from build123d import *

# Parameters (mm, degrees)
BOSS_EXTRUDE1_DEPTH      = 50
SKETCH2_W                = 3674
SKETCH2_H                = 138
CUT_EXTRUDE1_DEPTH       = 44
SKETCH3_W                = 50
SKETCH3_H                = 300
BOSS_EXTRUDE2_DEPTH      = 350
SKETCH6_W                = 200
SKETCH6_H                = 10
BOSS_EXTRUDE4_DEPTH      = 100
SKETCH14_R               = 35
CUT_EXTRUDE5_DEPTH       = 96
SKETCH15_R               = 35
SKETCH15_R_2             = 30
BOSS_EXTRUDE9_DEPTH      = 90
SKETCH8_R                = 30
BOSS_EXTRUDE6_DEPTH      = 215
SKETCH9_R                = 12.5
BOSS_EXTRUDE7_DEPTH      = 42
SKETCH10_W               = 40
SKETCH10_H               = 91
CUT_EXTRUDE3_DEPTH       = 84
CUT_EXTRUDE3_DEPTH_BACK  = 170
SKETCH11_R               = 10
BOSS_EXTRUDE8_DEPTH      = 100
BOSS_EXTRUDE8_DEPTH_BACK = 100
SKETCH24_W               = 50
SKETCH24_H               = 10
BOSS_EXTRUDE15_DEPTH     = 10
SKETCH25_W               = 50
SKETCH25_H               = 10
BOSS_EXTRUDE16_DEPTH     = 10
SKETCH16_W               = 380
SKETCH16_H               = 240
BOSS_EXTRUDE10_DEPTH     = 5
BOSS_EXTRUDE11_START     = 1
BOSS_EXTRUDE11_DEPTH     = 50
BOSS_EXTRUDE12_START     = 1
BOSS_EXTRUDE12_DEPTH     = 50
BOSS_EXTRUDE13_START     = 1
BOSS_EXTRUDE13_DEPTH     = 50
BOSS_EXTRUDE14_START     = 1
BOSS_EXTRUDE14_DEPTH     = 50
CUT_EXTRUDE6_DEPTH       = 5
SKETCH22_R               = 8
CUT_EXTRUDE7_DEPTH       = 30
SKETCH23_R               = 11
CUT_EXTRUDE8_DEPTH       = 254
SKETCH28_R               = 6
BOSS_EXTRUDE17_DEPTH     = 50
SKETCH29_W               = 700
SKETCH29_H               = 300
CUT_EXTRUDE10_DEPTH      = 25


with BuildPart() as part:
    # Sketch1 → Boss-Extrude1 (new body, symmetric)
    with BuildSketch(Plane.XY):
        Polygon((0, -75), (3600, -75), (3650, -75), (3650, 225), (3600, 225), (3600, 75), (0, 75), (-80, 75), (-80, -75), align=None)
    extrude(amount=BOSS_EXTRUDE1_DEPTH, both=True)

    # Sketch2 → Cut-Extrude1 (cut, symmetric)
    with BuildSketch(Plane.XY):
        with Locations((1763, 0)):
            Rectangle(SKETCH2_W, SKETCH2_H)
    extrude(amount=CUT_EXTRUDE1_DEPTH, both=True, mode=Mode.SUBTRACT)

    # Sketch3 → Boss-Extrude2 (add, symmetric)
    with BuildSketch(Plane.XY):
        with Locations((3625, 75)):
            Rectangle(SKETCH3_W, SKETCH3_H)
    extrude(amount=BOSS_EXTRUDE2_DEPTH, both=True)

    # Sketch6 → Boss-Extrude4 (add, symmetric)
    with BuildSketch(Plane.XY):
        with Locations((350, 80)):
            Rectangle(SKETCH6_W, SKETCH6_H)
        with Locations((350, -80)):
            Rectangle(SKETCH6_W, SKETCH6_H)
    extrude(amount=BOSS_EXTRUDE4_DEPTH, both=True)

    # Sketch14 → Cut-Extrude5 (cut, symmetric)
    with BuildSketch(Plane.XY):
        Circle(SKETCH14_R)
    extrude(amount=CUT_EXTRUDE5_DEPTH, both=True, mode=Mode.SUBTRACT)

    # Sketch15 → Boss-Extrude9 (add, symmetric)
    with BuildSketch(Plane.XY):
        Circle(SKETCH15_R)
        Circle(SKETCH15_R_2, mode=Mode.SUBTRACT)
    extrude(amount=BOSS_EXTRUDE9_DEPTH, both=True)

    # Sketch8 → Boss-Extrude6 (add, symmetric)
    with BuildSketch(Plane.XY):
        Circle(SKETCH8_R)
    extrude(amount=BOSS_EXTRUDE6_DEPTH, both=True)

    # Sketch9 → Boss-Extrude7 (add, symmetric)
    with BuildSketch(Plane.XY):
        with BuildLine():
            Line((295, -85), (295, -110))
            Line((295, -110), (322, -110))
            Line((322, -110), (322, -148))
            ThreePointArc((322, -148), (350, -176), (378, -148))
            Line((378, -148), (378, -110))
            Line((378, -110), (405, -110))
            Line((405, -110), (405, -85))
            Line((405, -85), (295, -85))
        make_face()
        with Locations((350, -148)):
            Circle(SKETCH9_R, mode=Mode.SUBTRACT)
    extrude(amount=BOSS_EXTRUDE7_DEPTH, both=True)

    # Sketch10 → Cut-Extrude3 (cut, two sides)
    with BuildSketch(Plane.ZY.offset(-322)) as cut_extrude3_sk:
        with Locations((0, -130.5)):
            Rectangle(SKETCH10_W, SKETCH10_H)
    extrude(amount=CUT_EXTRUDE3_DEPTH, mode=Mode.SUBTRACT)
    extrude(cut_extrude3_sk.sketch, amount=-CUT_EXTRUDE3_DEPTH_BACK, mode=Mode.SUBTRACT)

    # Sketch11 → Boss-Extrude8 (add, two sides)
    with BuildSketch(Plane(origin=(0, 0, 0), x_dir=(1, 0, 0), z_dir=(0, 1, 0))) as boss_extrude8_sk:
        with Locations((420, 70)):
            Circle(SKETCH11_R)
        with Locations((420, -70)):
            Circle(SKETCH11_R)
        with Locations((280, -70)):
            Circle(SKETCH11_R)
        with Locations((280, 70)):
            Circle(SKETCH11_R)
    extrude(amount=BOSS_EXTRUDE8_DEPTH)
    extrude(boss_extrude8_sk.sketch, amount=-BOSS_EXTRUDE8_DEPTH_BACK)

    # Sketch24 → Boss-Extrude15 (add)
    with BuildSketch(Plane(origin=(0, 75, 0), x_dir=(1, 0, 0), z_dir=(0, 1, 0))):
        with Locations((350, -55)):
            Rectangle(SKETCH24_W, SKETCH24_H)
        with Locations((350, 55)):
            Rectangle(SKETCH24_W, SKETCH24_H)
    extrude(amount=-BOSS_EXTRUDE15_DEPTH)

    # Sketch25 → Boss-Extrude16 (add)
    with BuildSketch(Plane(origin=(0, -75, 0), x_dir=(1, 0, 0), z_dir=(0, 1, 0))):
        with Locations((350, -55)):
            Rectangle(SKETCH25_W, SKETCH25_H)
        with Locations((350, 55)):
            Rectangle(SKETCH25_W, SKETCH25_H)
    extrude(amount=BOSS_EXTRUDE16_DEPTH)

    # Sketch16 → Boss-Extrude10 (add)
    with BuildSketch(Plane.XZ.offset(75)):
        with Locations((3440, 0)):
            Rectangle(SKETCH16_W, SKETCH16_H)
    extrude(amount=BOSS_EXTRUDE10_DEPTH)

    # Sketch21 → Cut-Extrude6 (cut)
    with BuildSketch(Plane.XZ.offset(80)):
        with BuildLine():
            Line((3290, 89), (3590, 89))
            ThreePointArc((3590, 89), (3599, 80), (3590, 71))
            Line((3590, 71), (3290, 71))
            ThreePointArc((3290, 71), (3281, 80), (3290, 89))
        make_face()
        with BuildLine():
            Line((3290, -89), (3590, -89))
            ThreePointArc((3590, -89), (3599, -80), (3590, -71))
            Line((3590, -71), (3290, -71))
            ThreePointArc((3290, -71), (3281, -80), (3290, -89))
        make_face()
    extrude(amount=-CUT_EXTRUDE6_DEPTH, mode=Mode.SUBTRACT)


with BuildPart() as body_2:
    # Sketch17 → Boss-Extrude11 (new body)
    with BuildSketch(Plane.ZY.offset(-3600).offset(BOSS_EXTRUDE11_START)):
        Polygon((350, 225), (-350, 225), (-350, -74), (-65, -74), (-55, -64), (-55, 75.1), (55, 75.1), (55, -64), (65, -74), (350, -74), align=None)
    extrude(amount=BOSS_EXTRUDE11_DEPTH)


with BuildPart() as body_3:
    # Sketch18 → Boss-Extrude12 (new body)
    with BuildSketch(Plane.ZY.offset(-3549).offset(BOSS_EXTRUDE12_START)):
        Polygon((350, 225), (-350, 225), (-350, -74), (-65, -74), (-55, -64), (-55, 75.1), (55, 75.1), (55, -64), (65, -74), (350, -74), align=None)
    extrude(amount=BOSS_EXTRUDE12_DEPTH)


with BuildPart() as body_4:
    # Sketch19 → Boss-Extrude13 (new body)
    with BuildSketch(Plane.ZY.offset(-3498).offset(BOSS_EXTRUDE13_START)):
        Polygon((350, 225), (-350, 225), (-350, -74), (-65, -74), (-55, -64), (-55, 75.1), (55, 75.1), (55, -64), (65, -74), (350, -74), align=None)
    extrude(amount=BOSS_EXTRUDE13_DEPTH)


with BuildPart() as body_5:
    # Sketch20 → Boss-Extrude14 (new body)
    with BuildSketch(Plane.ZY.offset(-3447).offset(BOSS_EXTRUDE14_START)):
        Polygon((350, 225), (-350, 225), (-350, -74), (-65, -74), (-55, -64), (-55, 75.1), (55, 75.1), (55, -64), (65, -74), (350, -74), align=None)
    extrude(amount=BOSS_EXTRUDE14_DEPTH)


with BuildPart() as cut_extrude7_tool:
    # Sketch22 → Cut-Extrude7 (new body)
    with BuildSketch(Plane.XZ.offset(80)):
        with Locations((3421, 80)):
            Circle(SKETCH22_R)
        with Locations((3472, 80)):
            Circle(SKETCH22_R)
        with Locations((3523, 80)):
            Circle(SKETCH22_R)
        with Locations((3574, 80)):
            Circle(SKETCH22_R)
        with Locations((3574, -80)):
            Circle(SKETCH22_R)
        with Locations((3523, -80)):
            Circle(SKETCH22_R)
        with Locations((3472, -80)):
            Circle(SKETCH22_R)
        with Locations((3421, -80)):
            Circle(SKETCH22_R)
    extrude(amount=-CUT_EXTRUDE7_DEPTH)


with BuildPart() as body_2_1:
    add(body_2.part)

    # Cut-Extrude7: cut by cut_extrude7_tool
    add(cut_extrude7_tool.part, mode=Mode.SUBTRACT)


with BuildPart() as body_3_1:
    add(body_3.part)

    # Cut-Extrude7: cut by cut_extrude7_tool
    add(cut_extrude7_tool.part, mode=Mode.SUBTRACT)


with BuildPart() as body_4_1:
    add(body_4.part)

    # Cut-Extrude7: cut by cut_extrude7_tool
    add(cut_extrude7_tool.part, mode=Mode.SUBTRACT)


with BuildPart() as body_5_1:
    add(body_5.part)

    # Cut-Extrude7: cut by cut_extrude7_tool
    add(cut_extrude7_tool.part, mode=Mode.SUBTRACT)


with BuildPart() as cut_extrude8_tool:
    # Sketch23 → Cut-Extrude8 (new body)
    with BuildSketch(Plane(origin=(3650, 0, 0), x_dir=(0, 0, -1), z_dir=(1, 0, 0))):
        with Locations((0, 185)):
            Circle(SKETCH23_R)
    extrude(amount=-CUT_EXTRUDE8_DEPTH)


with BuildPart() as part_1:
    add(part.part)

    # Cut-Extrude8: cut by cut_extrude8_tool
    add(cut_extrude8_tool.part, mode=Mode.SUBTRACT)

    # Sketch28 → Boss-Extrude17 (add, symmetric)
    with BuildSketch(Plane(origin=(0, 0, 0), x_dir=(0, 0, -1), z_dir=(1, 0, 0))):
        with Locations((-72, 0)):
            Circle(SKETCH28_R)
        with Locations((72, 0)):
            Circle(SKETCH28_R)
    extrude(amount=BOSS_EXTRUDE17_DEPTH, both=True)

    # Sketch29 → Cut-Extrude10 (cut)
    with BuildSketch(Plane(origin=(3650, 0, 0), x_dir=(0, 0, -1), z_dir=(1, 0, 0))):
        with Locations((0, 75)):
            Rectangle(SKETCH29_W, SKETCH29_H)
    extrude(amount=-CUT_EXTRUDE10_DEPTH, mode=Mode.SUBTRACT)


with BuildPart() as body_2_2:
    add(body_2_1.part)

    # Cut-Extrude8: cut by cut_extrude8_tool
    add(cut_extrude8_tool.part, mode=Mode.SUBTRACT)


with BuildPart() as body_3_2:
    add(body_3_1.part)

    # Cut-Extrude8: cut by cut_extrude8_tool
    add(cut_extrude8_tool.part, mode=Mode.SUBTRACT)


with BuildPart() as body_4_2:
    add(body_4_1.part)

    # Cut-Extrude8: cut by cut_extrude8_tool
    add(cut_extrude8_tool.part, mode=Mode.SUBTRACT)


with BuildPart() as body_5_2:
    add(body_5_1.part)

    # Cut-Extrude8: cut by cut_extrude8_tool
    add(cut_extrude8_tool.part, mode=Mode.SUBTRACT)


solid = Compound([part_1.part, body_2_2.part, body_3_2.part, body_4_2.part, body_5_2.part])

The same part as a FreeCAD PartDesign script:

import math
import FreeCAD as App
import Part
import Sketcher


def add_polygon(sketch, points):
    """Adds a closed chain of lines whose ends are joined by coincident constraints."""
    first, n = sketch.GeometryCount, len(points)
    for a, b in zip(points, points[1:] + points[:1]):
        sketch.addGeometry(Part.LineSegment(App.Vector(*a, 0), App.Vector(*b, 0)), False)
    for i in range(n):
        sketch.addConstraint(Sketcher.Constraint("Coincident", first + i, 2, first + (i + 1) % n, 1))

doc = App.newDocument("Part")
params = doc.addObject("Spreadsheet::Sheet", "Params")
for row, (alias, value) in enumerate([
    ("sketch1_width", "50 mm"),
    ("sketch1_width2", "3680 mm"),
    ("sketch1_height", "300 mm"),
    ("pad1_length", "100 mm"),
    ("sketch2_width", "3674 mm"),
    ("sketch2_height", "138 mm"),
    ("pocket1_length", "88 mm"),
    ("sketch3_width", "50 mm"),
    ("sketch3_height", "300 mm"),
    ("pad2_length", "700 mm"),
    ("sketch4_width", "200 mm"),
    ("sketch4_height", "10 mm"),
    ("pad3_length", "200 mm"),
    ("sketch5_diameter", "70 mm"),
    ("pocket2_length", "192 mm"),
    ("sketch6_diameter", "70 mm"),
    ("sketch6_diameter2", "60 mm"),
    ("pad4_length", "180 mm"),
    ("sketch7_diameter", "60 mm"),
    ("pad5_length", "430 mm"),
    ("sketch8_diameter", "25 mm"),
    ("sketch8_radius", "28 mm"),
    ("sketch8_width", "27 mm"),
    ("sketch8_height", "25 mm"),
    ("sketch8_height2", "38 mm"),
    ("pad6_length", "84 mm"),
    ("sketch9_width", "91 mm"),
    ("sketch9_height", "40 mm"),
    ("sketch10_diameter", "20 mm"),
    ("pad7_length", "100 mm"),
    ("pad7_length2", "100 mm"),
    ("sketch11_width", "50 mm"),
    ("sketch11_height", "10 mm"),
    ("pad8_length", "10 mm"),
    ("sketch12_width", "50 mm"),
    ("sketch12_height", "10 mm"),
    ("pad9_length", "10 mm"),
    ("sketch13_width", "380 mm"),
    ("sketch13_height", "240 mm"),
    ("pad10_length", "5 mm"),
    ("sketch14_radius", "9 mm"),
    ("sketch14_width", "300 mm"),
    ("pocket4_length", "5 mm"),
    ("sketch15_width", "299 mm"),
    ("sketch15_height", "700 mm"),
    ("sketch15_height2", "285 mm"),
    ("sketch15_height3", "110 mm"),
    ("sketch15_width2", "139.1 mm"),
    ("pad11_length", "50 mm"),
    ("sketch16_width", "299 mm"),
    ("sketch16_height", "700 mm"),
    ("sketch16_height2", "285 mm"),
    ("sketch16_height3", "110 mm"),
    ("sketch16_width2", "139.1 mm"),
    ("pad12_length", "50 mm"),
    ("sketch17_width", "299 mm"),
    ("sketch17_height", "700 mm"),
    ("sketch17_height2", "285 mm"),
    ("sketch17_height3", "110 mm"),
    ("sketch17_width2", "139.1 mm"),
    ("pad13_length", "50 mm"),
    ("sketch18_width", "299 mm"),
    ("sketch18_height", "700 mm"),
    ("sketch18_height2", "285 mm"),
    ("sketch18_height3", "110 mm"),
    ("sketch18_width2", "139.1 mm"),
    ("pad14_length", "50 mm"),
    ("sketch19_diameter", "16 mm"),
    ("pad15_length", "30 mm"),
    ("sketch20_diameter", "22 mm"),
    ("pad16_length", "254 mm"),
    ("sketch21_diameter", "12 mm"),
    ("pad17_length", "100 mm"),
    ("sketch22_width", "300 mm"),
    ("sketch22_height", "700 mm"),
    ("pocket5_length", "25 mm"),
], start=1):
    params.set(f"A{row}", alias)
    params.set(f"B{row}", "=" + value)
    params.setAlias(f"B{row}", alias)

body = doc.addObject("PartDesign::Body", "Body")

sketch1 = doc.addObject("Sketcher::SketchObject", "Sketch")
body.addObject(sketch1)
sketch1.AttachmentSupport = (doc.XY_Plane, [""])
sketch1.MapMode = "FlatFace"
add_polygon(sketch1, [(3650, -75), (3650, 225), (3600, 225), (3600, 75), (-80, 75), (-80, -75)])
sketch1.addConstraint([
    Sketcher.Constraint("Vertical", 0),
    Sketcher.Constraint("Horizontal", 1),
    Sketcher.Constraint("Vertical", 2),
    Sketcher.Constraint("Horizontal", 3),
    Sketcher.Constraint("Vertical", 4),
    Sketcher.Constraint("Horizontal", 5),
    Sketcher.Constraint("Equal", 2, 4),
    Sketcher.Constraint("DistanceX", 1, 2, 1, 1, 50.0),
    Sketcher.Constraint("DistanceX", 3, 2, 3, 1, 3680.0),
    Sketcher.Constraint("DistanceY", 0, 1, 0, 2, 300.0),
    Sketcher.Constraint("DistanceX", -1, 1, 0, 2, 3650.0),
    Sketcher.Constraint("DistanceY", -1, 1, 0, 2, 225.0),
])
sketch1.setExpression("Constraints[13]", "Params.sketch1_width")
sketch1.setExpression("Constraints[14]", "Params.sketch1_width2")
sketch1.setExpression("Constraints[15]", "Params.sketch1_height")
pad1 = doc.addObject("PartDesign::Pad", "Pad")
body.addObject(pad1)
pad1.Profile = sketch1
pad1.setExpression("Length", "Params.pad1_length")
pad1.Midplane = True

sketch2 = doc.addObject("Sketcher::SketchObject", "Sketch001")
body.addObject(sketch2)
sketch2.AttachmentSupport = (doc.XY_Plane, [""])
sketch2.MapMode = "FlatFace"
add_polygon(sketch2, [(-74, 69), (-74, -69), (3600, -69), (3600, 69)])
sketch2.addConstraint([
    Sketcher.Constraint("Vertical", 0),
    Sketcher.Constraint("Horizontal", 1),
    Sketcher.Constraint("Vertical", 2),
    Sketcher.Constraint("Horizontal", 3),
    Sketcher.Constraint("DistanceX", 1, 1, 1, 2, 3674.0),
    Sketcher.Constraint("DistanceY", 0, 2, 0, 1, 138.0),
    Sketcher.Constraint("DistanceX", 0, 2, -1, 1, 74.0),
    Sketcher.Constraint("DistanceY", 0, 2, -1, 1, 69.0),
])
sketch2.setExpression("Constraints[8]", "Params.sketch2_width")
sketch2.setExpression("Constraints[9]", "Params.sketch2_height")
pocket1 = doc.addObject("PartDesign::Pocket", "Pocket")
body.addObject(pocket1)
pocket1.Profile = sketch2
pocket1.setExpression("Length", "Params.pocket1_length")
pocket1.Midplane = True

sketch3 = doc.addObject("Sketcher::SketchObject", "Sketch002")
body.addObject(sketch3)
sketch3.AttachmentSupport = (doc.XY_Plane, [""])
sketch3.MapMode = "FlatFace"
add_polygon(sketch3, [(3600, 225), (3600, -75), (3650, -75), (3650, 225)])
sketch3.addConstraint([
    Sketcher.Constraint("Vertical", 0),
    Sketcher.Constraint("Horizontal", 1),
    Sketcher.Constraint("Vertical", 2),
    Sketcher.Constraint("Horizontal", 3),
    Sketcher.Constraint("DistanceX", 1, 1, 1, 2, 50.0),
    Sketcher.Constraint("DistanceY", 0, 2, 0, 1, 300.0),
    Sketcher.Constraint("DistanceX", -1, 1, 0, 2, 3600.0),
    Sketcher.Constraint("DistanceY", 0, 2, -1, 1, 75.0),
])
sketch3.setExpression("Constraints[8]", "Params.sketch3_width")
sketch3.setExpression("Constraints[9]", "Params.sketch3_height")
pad2 = doc.addObject("PartDesign::Pad", "Pad001")
body.addObject(pad2)
pad2.Profile = sketch3
pad2.setExpression("Length", "Params.pad2_length")
pad2.Midplane = True

sketch4 = doc.addObject("Sketcher::SketchObject", "Sketch003")
body.addObject(sketch4)
sketch4.AttachmentSupport = (doc.XY_Plane, [""])
sketch4.MapMode = "FlatFace"
add_polygon(sketch4, [(250, 85), (250, 75), (450, 75), (450, 85)])
add_polygon(sketch4, [(250, -75), (250, -85), (450, -85), (450, -75)])
sketch4.addConstraint([
    Sketcher.Constraint("Vertical", 0),
    Sketcher.Constraint("Horizontal", 1),
    Sketcher.Constraint("Vertical", 2),
    Sketcher.Constraint("Horizontal", 3),
    Sketcher.Constraint("Vertical", 4),
    Sketcher.Constraint("Horizontal", 5),
    Sketcher.Constraint("Vertical", 6),
    Sketcher.Constraint("Horizontal", 7),
    Sketcher.Constraint("Symmetric", 3, 2, 4, 2, -1),
    Sketcher.Constraint("Symmetric", 1, 2, 6, 2, -1),
    Sketcher.Constraint("DistanceX", 1, 1, 1, 2, 200.0),
    Sketcher.Constraint("DistanceY", 0, 2, 0, 1, 10.0),
    Sketcher.Constraint("DistanceX", -1, 1, 0, 2, 250.0),
    Sketcher.Constraint("DistanceY", -1, 1, 0, 2, 75.0),
])
sketch4.setExpression("Constraints[18]", "Params.sketch4_width")
sketch4.setExpression("Constraints[19]", "Params.sketch4_height")
pad3 = doc.addObject("PartDesign::Pad", "Pad002")
body.addObject(pad3)
pad3.Profile = sketch4
pad3.setExpression("Length", "Params.pad3_length")
pad3.Midplane = True

sketch5 = doc.addObject("Sketcher::SketchObject", "Sketch004")
body.addObject(sketch5)
sketch5.AttachmentSupport = (doc.XY_Plane, [""])
sketch5.MapMode = "FlatFace"
sketch5.addGeometry(Part.Circle(App.Vector(0, 0, 0), App.Vector(0, 0, 1), 35), False)
sketch5.addConstraint([
    Sketcher.Constraint("Coincident", 0, 3, -1, 1),
    Sketcher.Constraint("Diameter", 0, 70.0),
])
sketch5.setExpression("Constraints[1]", "Params.sketch5_diameter")
pocket2 = doc.addObject("PartDesign::Pocket", "Pocket001")
body.addObject(pocket2)
pocket2.Profile = sketch5
pocket2.setExpression("Length", "Params.pocket2_length")
pocket2.Midplane = True

sketch6 = doc.addObject("Sketcher::SketchObject", "Sketch005")
body.addObject(sketch6)
sketch6.AttachmentSupport = (doc.XY_Plane, [""])
sketch6.MapMode = "FlatFace"
sketch6.addGeometry([
    Part.Circle(App.Vector(0, 0, 0), App.Vector(0, 0, 1), 35),
    Part.Circle(App.Vector(0, 0, 0), App.Vector(0, 0, 1), 30),
], False)
sketch6.addConstraint([
    Sketcher.Constraint("Coincident", 0, 3, -1, 1),
    Sketcher.Constraint("Coincident", 1, 3, -1, 1),
    Sketcher.Constraint("Diameter", 0, 70.0),
    Sketcher.Constraint("Diameter", 1, 60.0),
])
sketch6.setExpression("Constraints[2]", "Params.sketch6_diameter")
sketch6.setExpression("Constraints[3]", "Params.sketch6_diameter2")
pad4 = doc.addObject("PartDesign::Pad", "Pad003")
body.addObject(pad4)
pad4.Profile = sketch6
pad4.setExpression("Length", "Params.pad4_length")
pad4.Midplane = True

sketch7 = doc.addObject("Sketcher::SketchObject", "Sketch006")
body.addObject(sketch7)
sketch7.AttachmentSupport = (doc.XY_Plane, [""])
sketch7.MapMode = "FlatFace"
sketch7.addGeometry(Part.Circle(App.Vector(0, 0, 0), App.Vector(0, 0, 1), 30), False)
sketch7.addConstraint([
    Sketcher.Constraint("Coincident", 0, 3, -1, 1),
    Sketcher.Constraint("Diameter", 0, 60.0),
])
sketch7.setExpression("Constraints[1]", "Params.sketch7_diameter")
pad5 = doc.addObject("PartDesign::Pad", "Pad004")
body.addObject(pad5)
pad5.Profile = sketch7
pad5.setExpression("Length", "Params.pad5_length")
pad5.Midplane = True

sketch8 = doc.addObject("Sketcher::SketchObject", "Sketch007")
body.addObject(sketch8)
sketch8.AttachmentSupport = (doc.XY_Plane, [""])
sketch8.MapMode = "FlatFace"
sketch8.addGeometry([
    Part.LineSegment(App.Vector(295, -85, 0), App.Vector(295, -110, 0)),
    Part.LineSegment(App.Vector(295, -110, 0), App.Vector(322, -110, 0)),
    Part.LineSegment(App.Vector(322, -110, 0), App.Vector(322, -148, 0)),
    Part.ArcOfCircle(Part.Circle(App.Vector(350, -148, 0), App.Vector(0, 0, 1), 28), math.radians(180), math.radians(360)),
    Part.LineSegment(App.Vector(378, -148, 0), App.Vector(378, -110, 0)),
    Part.LineSegment(App.Vector(378, -110, 0), App.Vector(405, -110, 0)),
    Part.LineSegment(App.Vector(405, -110, 0), App.Vector(405, -85, 0)),
    Part.LineSegment(App.Vector(405, -85, 0), App.Vector(295, -85, 0)),
    Part.Circle(App.Vector(350, -148, 0), App.Vector(0, 0, 1), 12),
], False)
sketch8.addConstraint([
    Sketcher.Constraint("Coincident", 0, 2, 1, 1),
    Sketcher.Constraint("Coincident", 1, 2, 2, 1),
    Sketcher.Constraint("Tangent", 2, 2, 3, 1),
    Sketcher.Constraint("Tangent", 3, 2, 4, 1),
    Sketcher.Constraint("Coincident", 4, 2, 5, 1),
    Sketcher.Constraint("Coincident", 5, 2, 6, 1),
    Sketcher.Constraint("Coincident", 6, 2, 7, 1),
    Sketcher.Constraint("Coincident", 7, 2, 0, 1),
    Sketcher.Constraint("Vertical", 0),
    Sketcher.Constraint("Horizontal", 1),
    Sketcher.Constraint("Vertical", 2),
    Sketcher.Constraint("Vertical", 4),
    Sketcher.Constraint("Horizontal", 5),
    Sketcher.Constraint("Vertical", 6),
    Sketcher.Constraint("Horizontal", 7),
    Sketcher.Constraint("Coincident", 8, 3, 3, 3),
    Sketcher.Constraint("Horizontal", 1, 2, 4, 2),
    Sketcher.Constraint("Equal", 1, 5),
    Sketcher.Constraint("Diameter", 8, 25.0),
    Sketcher.Constraint("Radius", 3, 28.0),
    Sketcher.Constraint("DistanceX", 1, 1, 1, 2, 27.0),
    Sketcher.Constraint("DistanceY", 0, 2, 0, 1, 25.0),
    Sketcher.Constraint("DistanceY", 2, 2, 2, 1, 38.0),
    Sketcher.Constraint("DistanceX", -1, 1, 3, 3, 350.0),
    Sketcher.Constraint("DistanceY", 3, 3, -1, 1, 148.0),
])
sketch8.setExpression("Constraints[18]", "Params.sketch8_diameter")
sketch8.setExpression("Constraints[19]", "Params.sketch8_radius")
sketch8.setExpression("Constraints[20]", "Params.sketch8_width")
sketch8.setExpression("Constraints[21]", "Params.sketch8_height")
sketch8.setExpression("Constraints[22]", "Params.sketch8_height2")
pad6 = doc.addObject("PartDesign::Pad", "Pad005")
body.addObject(pad6)
pad6.Profile = sketch8
pad6.setExpression("Length", "Params.pad6_length")
pad6.Midplane = True

sketch9 = doc.addObject("Sketcher::SketchObject", "Sketch008")
body.addObject(sketch9)
sketch9.AttachmentSupport = (doc.YZ_Plane, [""])
sketch9.MapMode = "FlatFace"
sketch9.AttachmentOffset = App.Placement(App.Vector(0, 0, 322), App.Rotation())
add_polygon(sketch9, [(-85, -20), (-176, -20), (-176, 20), (-85, 20)])
sketch9.addConstraint([
    Sketcher.Constraint("Horizontal", 0),
    Sketcher.Constraint("Vertical", 1),
    Sketcher.Constraint("Horizontal", 2),
    Sketcher.Constraint("Vertical", 3),
    Sketcher.Constraint("DistanceX", 0, 2, 0, 1, 91.0),
    Sketcher.Constraint("DistanceY", 1, 1, 1, 2, 40.0),
    Sketcher.Constraint("DistanceX", 0, 2, -1, 1, 176.0),
    Sketcher.Constraint("DistanceY", 0, 2, -1, 1, 20.0),
])
sketch9.setExpression("Constraints[8]", "Params.sketch9_width")
sketch9.setExpression("Constraints[9]", "Params.sketch9_height")
pocket3 = doc.addObject("PartDesign::Pocket", "Pocket002")
body.addObject(pocket3)
pocket3.Profile = sketch9
pocket3.Type = "ThroughAll"
pocket3.Midplane = True

sketch10 = doc.addObject("Sketcher::SketchObject", "Sketch009")
body.addObject(sketch10)
sketch10.AttachmentSupport = (doc.XZ_Plane, [""])
sketch10.MapMode = "FlatFace"
sketch10.addGeometry([
    Part.Circle(App.Vector(420, -70, 0), App.Vector(0, 0, 1), 10),
    Part.Circle(App.Vector(420, 70, 0), App.Vector(0, 0, 1), 10),
    Part.Circle(App.Vector(280, 70, 0), App.Vector(0, 0, 1), 10),
    Part.Circle(App.Vector(280, -70, 0), App.Vector(0, 0, 1), 10),
], False)
sketch10.addConstraint([
    Sketcher.Constraint("Equal", 0, 1),
    Sketcher.Constraint("Equal", 1, 2),
    Sketcher.Constraint("Equal", 2, 3),
    Sketcher.Constraint("Symmetric", 0, 3, 1, 3, -1),
    Sketcher.Constraint("Symmetric", 2, 3, 3, 3, -1),
    Sketcher.Constraint("Horizontal", 1, 3, 2, 3),
    Sketcher.Constraint("Diameter", 0, 20.0),
    Sketcher.Constraint("DistanceX", -1, 1, 0, 3, 420.0),
    Sketcher.Constraint("DistanceY", 0, 3, -1, 1, 70.0),
    Sketcher.Constraint("DistanceX", -1, 1, 2, 3, 280.0),
])
sketch10.setExpression("Constraints[6]", "Params.sketch10_diameter")
pad7 = doc.addObject("PartDesign::Pad", "Pad006")
body.addObject(pad7)
pad7.Profile = sketch10
pad7.Type = "TwoLengths"
pad7.setExpression("Length", "Params.pad7_length")
pad7.setExpression("Length2", "Params.pad7_length2")
pad7.Reversed = True

sketch11 = doc.addObject("Sketcher::SketchObject", "Sketch010")
body.addObject(sketch11)
sketch11.AttachmentSupport = (doc.XZ_Plane, [""])
sketch11.MapMode = "FlatFace"
sketch11.AttachmentOffset = App.Placement(App.Vector(0, 0, -75), App.Rotation())
add_polygon(sketch11, [(325, 50), (325, 60), (375, 60), (375, 50)])
add_polygon(sketch11, [(325, -60), (325, -50), (375, -50), (375, -60)])
sketch11.addConstraint([
    Sketcher.Constraint("Vertical", 0),
    Sketcher.Constraint("Horizontal", 1),
    Sketcher.Constraint("Vertical", 2),
    Sketcher.Constraint("Horizontal", 3),
    Sketcher.Constraint("Vertical", 4),
    Sketcher.Constraint("Horizontal", 5),
    Sketcher.Constraint("Vertical", 6),
    Sketcher.Constraint("Horizontal", 7),
    Sketcher.Constraint("Symmetric", 3, 2, 4, 2, -1),
    Sketcher.Constraint("Symmetric", 1, 2, 6, 2, -1),
    Sketcher.Constraint("DistanceX", 1, 1, 1, 2, 50.0),
    Sketcher.Constraint("DistanceY", 0, 1, 0, 2, 10.0),
    Sketcher.Constraint("DistanceX", -1, 1, 0, 2, 325.0),
    Sketcher.Constraint("DistanceY", -1, 1, 0, 2, 60.0),
])
sketch11.setExpression("Constraints[18]", "Params.sketch11_width")
sketch11.setExpression("Constraints[19]", "Params.sketch11_height")
pad8 = doc.addObject("PartDesign::Pad", "Pad007")
body.addObject(pad8)
pad8.Profile = sketch11
pad8.setExpression("Length", "Params.pad8_length")

sketch12 = doc.addObject("Sketcher::SketchObject", "Sketch011")
body.addObject(sketch12)
sketch12.AttachmentSupport = (doc.XZ_Plane, [""])
sketch12.MapMode = "FlatFace"
sketch12.AttachmentOffset = App.Placement(App.Vector(0, 0, 75), App.Rotation())
add_polygon(sketch12, [(325, 50), (325, 60), (375, 60), (375, 50)])
add_polygon(sketch12, [(325, -60), (325, -50), (375, -50), (375, -60)])
sketch12.addConstraint([
    Sketcher.Constraint("Vertical", 0),
    Sketcher.Constraint("Horizontal", 1),
    Sketcher.Constraint("Vertical", 2),
    Sketcher.Constraint("Horizontal", 3),
    Sketcher.Constraint("Vertical", 4),
    Sketcher.Constraint("Horizontal", 5),
    Sketcher.Constraint("Vertical", 6),
    Sketcher.Constraint("Horizontal", 7),
    Sketcher.Constraint("Symmetric", 3, 2, 4, 2, -1),
    Sketcher.Constraint("Symmetric", 1, 2, 6, 2, -1),
    Sketcher.Constraint("DistanceX", 1, 1, 1, 2, 50.0),
    Sketcher.Constraint("DistanceY", 0, 1, 0, 2, 10.0),
    Sketcher.Constraint("DistanceX", -1, 1, 0, 2, 325.0),
    Sketcher.Constraint("DistanceY", -1, 1, 0, 2, 60.0),
])
sketch12.setExpression("Constraints[18]", "Params.sketch12_width")
sketch12.setExpression("Constraints[19]", "Params.sketch12_height")
pad9 = doc.addObject("PartDesign::Pad", "Pad008")
body.addObject(pad9)
pad9.Profile = sketch12
pad9.setExpression("Length", "Params.pad9_length")
pad9.Reversed = True

sketch13 = doc.addObject("Sketcher::SketchObject", "Sketch012")
body.addObject(sketch13)
sketch13.AttachmentSupport = (doc.XZ_Plane, [""])
sketch13.MapMode = "FlatFace"
sketch13.AttachmentOffset = App.Placement(App.Vector(0, 0, 75), App.Rotation())
add_polygon(sketch13, [(3250, 120), (3250, -120), (3630, -120), (3630, 120)])
sketch13.addConstraint([
    Sketcher.Constraint("Vertical", 0),
    Sketcher.Constraint("Horizontal", 1),
    Sketcher.Constraint("Vertical", 2),
    Sketcher.Constraint("Horizontal", 3),
    Sketcher.Constraint("DistanceX", 1, 1, 1, 2, 380.0),
    Sketcher.Constraint("DistanceY", 0, 2, 0, 1, 240.0),
    Sketcher.Constraint("DistanceX", -1, 1, 0, 2, 3250.0),
    Sketcher.Constraint("DistanceY", 0, 2, -1, 1, 120.0),
])
sketch13.setExpression("Constraints[8]", "Params.sketch13_width")
sketch13.setExpression("Constraints[9]", "Params.sketch13_height")
pad10 = doc.addObject("PartDesign::Pad", "Pad009")
body.addObject(pad10)
pad10.Profile = sketch13
pad10.setExpression("Length", "Params.pad10_length")

sketch14 = doc.addObject("Sketcher::SketchObject", "Sketch013")
body.addObject(sketch14)
sketch14.AttachmentSupport = (doc.XZ_Plane, [""])
sketch14.MapMode = "FlatFace"
sketch14.AttachmentOffset = App.Placement(App.Vector(0, 0, 80), App.Rotation())
sketch14.addGeometry([
    Part.LineSegment(App.Vector(3590, 89, 0), App.Vector(3290, 89, 0)),
    Part.ArcOfCircle(Part.Circle(App.Vector(3290, 80, 0), App.Vector(0, 0, 1), 9), math.radians(90), math.radians(270)),
    Part.LineSegment(App.Vector(3290, 71, 0), App.Vector(3590, 71, 0)),
    Part.ArcOfCircle(Part.Circle(App.Vector(3590, 80, 0), App.Vector(0, 0, 1), 9), math.radians(-90), math.radians(90)),
    Part.LineSegment(App.Vector(3290, -89, 0), App.Vector(3590, -89, 0)),
    Part.ArcOfCircle(Part.Circle(App.Vector(3590, -80, 0), App.Vector(0, 0, 1), 9), math.radians(-90), math.radians(90)),
    Part.LineSegment(App.Vector(3590, -71, 0), App.Vector(3290, -71, 0)),
    Part.ArcOfCircle(Part.Circle(App.Vector(3290, -80, 0), App.Vector(0, 0, 1), 9), math.radians(90), math.radians(270)),
], False)
sketch14.addConstraint([
    Sketcher.Constraint("Tangent", 0, 2, 1, 1),
    Sketcher.Constraint("Tangent", 1, 2, 2, 1),
    Sketcher.Constraint("Tangent", 2, 2, 3, 1),
    Sketcher.Constraint("Tangent", 3, 2, 0, 1),
    Sketcher.Constraint("Tangent", 4, 2, 5, 1),
    Sketcher.Constraint("Tangent", 5, 2, 6, 1),
    Sketcher.Constraint("Tangent", 6, 2, 7, 1),
    Sketcher.Constraint("Tangent", 7, 2, 4, 1),
    Sketcher.Constraint("Horizontal", 0),
    Sketcher.Constraint("Horizontal", 2),
    Sketcher.Constraint("Horizontal", 4),
    Sketcher.Constraint("Horizontal", 6),
    Sketcher.Constraint("Equal", 3, 5),
    Sketcher.Constraint("Symmetric", 3, 3, 5, 3, -1),
    Sketcher.Constraint("Vertical", 1, 3, 7, 3),
    Sketcher.Constraint("Radius", 1, 9.0),
    Sketcher.Constraint("DistanceX", 0, 2, 0, 1, 300.0),
    Sketcher.Constraint("DistanceX", -1, 1, 1, 3, 3290.0),
    Sketcher.Constraint("DistanceY", -1, 1, 1, 3, 80.0),
])
sketch14.setExpression("Constraints[15]", "Params.sketch14_radius")
sketch14.setExpression("Constraints[16]", "Params.sketch14_width")
pocket4 = doc.addObject("PartDesign::Pocket", "Pocket003")
body.addObject(pocket4)
pocket4.Profile = sketch14
pocket4.setExpression("Length", "Params.pocket4_length")
body2 = doc.addObject("PartDesign::Body", "Body001")

sketch15 = doc.addObject("Sketcher::SketchObject", "Sketch014")
body2.addObject(sketch15)
sketch15.AttachmentSupport = (doc.getObject("YZ_Plane001"), [""])
sketch15.MapMode = "FlatFace"
sketch15.AttachmentOffset = App.Placement(App.Vector(0, 0, 3599), App.Rotation())
add_polygon(sketch15, [(225, 350), (225, -350), (-74, -350), (-74, -65), (-64, -55), (75, -55), (75, 55), (-64, 55), (-74, 65), (-74, 350)])
sketch15.addConstraint([
    Sketcher.Constraint("Vertical", 0),
    Sketcher.Constraint("Horizontal", 1),
    Sketcher.Constraint("Vertical", 2),
    Sketcher.Constraint("Horizontal", 4),
    Sketcher.Constraint("Vertical", 5),
    Sketcher.Constraint("Horizontal", 6),
    Sketcher.Constraint("Vertical", 8),
    Sketcher.Constraint("Horizontal", 9),
    Sketcher.Constraint("Symmetric", 3, 2, 6, 2, -1),
    Sketcher.Constraint("Symmetric", 2, 2, 7, 2, -1),
    Sketcher.Constraint("Perpendicular", 3, 7),
    Sketcher.Constraint("Equal", 2, 8),
    Sketcher.Constraint("DistanceX", 1, 2, 1, 1, 299.0),
    Sketcher.Constraint("DistanceY", 0, 2, 0, 1, 700.0),
    Sketcher.Constraint("DistanceY", 2, 1, 2, 2, 285.0),
    Sketcher.Constraint("DistanceY", 5, 1, 5, 2, 110.0),
    Sketcher.Constraint("DistanceX", 4, 1, 4, 2, 139.1),
    Sketcher.Constraint("DistanceX", -1, 1, 0, 2, 225.0),
])
sketch15.setExpression("Constraints[22]", "Params.sketch15_width")
sketch15.setExpression("Constraints[23]", "Params.sketch15_height")
sketch15.setExpression("Constraints[24]", "Params.sketch15_height2")
sketch15.setExpression("Constraints[25]", "Params.sketch15_height3")
sketch15.setExpression("Constraints[26]", "Params.sketch15_width2")
pad11 = doc.addObject("PartDesign::Pad", "Pad010")
body2.addObject(pad11)
pad11.Profile = sketch15
pad11.setExpression("Length", "Params.pad11_length")
pad11.Reversed = True
body3 = doc.addObject("PartDesign::Body", "Body002")

sketch16 = doc.addObject("Sketcher::SketchObject", "Sketch015")
body3.addObject(sketch16)
sketch16.AttachmentSupport = (doc.getObject("YZ_Plane002"), [""])
sketch16.MapMode = "FlatFace"
sketch16.AttachmentOffset = App.Placement(App.Vector(0, 0, 3548), App.Rotation())
add_polygon(sketch16, [(225, 350), (225, -350), (-74, -350), (-74, -65), (-64, -55), (75, -55), (75, 55), (-64, 55), (-74, 65), (-74, 350)])
sketch16.addConstraint([
    Sketcher.Constraint("Vertical", 0),
    Sketcher.Constraint("Horizontal", 1),
    Sketcher.Constraint("Vertical", 2),
    Sketcher.Constraint("Horizontal", 4),
    Sketcher.Constraint("Vertical", 5),
    Sketcher.Constraint("Horizontal", 6),
    Sketcher.Constraint("Vertical", 8),
    Sketcher.Constraint("Horizontal", 9),
    Sketcher.Constraint("Symmetric", 3, 2, 6, 2, -1),
    Sketcher.Constraint("Symmetric", 2, 2, 7, 2, -1),
    Sketcher.Constraint("Perpendicular", 3, 7),
    Sketcher.Constraint("Equal", 2, 8),
    Sketcher.Constraint("DistanceX", 1, 2, 1, 1, 299.0),
    Sketcher.Constraint("DistanceY", 0, 2, 0, 1, 700.0),
    Sketcher.Constraint("DistanceY", 2, 1, 2, 2, 285.0),
    Sketcher.Constraint("DistanceY", 5, 1, 5, 2, 110.0),
    Sketcher.Constraint("DistanceX", 4, 1, 4, 2, 139.1),
    Sketcher.Constraint("DistanceX", -1, 1, 0, 2, 225.0),
])
sketch16.setExpression("Constraints[22]", "Params.sketch16_width")
sketch16.setExpression("Constraints[23]", "Params.sketch16_height")
sketch16.setExpression("Constraints[24]", "Params.sketch16_height2")
sketch16.setExpression("Constraints[25]", "Params.sketch16_height3")
sketch16.setExpression("Constraints[26]", "Params.sketch16_width2")
pad12 = doc.addObject("PartDesign::Pad", "Pad011")
body3.addObject(pad12)
pad12.Profile = sketch16
pad12.setExpression("Length", "Params.pad12_length")
pad12.Reversed = True
body4 = doc.addObject("PartDesign::Body", "Body003")

sketch17 = doc.addObject("Sketcher::SketchObject", "Sketch016")
body4.addObject(sketch17)
sketch17.AttachmentSupport = (doc.getObject("YZ_Plane003"), [""])
sketch17.MapMode = "FlatFace"
sketch17.AttachmentOffset = App.Placement(App.Vector(0, 0, 3497), App.Rotation())
add_polygon(sketch17, [(225, 350), (225, -350), (-74, -350), (-74, -65), (-64, -55), (75, -55), (75, 55), (-64, 55), (-74, 65), (-74, 350)])
sketch17.addConstraint([
    Sketcher.Constraint("Vertical", 0),
    Sketcher.Constraint("Horizontal", 1),
    Sketcher.Constraint("Vertical", 2),
    Sketcher.Constraint("Horizontal", 4),
    Sketcher.Constraint("Vertical", 5),
    Sketcher.Constraint("Horizontal", 6),
    Sketcher.Constraint("Vertical", 8),
    Sketcher.Constraint("Horizontal", 9),
    Sketcher.Constraint("Symmetric", 3, 2, 6, 2, -1),
    Sketcher.Constraint("Symmetric", 2, 2, 7, 2, -1),
    Sketcher.Constraint("Perpendicular", 3, 7),
    Sketcher.Constraint("Equal", 2, 8),
    Sketcher.Constraint("DistanceX", 1, 2, 1, 1, 299.0),
    Sketcher.Constraint("DistanceY", 0, 2, 0, 1, 700.0),
    Sketcher.Constraint("DistanceY", 2, 1, 2, 2, 285.0),
    Sketcher.Constraint("DistanceY", 5, 1, 5, 2, 110.0),
    Sketcher.Constraint("DistanceX", 4, 1, 4, 2, 139.1),
    Sketcher.Constraint("DistanceX", -1, 1, 0, 2, 225.0),
])
sketch17.setExpression("Constraints[22]", "Params.sketch17_width")
sketch17.setExpression("Constraints[23]", "Params.sketch17_height")
sketch17.setExpression("Constraints[24]", "Params.sketch17_height2")
sketch17.setExpression("Constraints[25]", "Params.sketch17_height3")
sketch17.setExpression("Constraints[26]", "Params.sketch17_width2")
pad13 = doc.addObject("PartDesign::Pad", "Pad012")
body4.addObject(pad13)
pad13.Profile = sketch17
pad13.setExpression("Length", "Params.pad13_length")
pad13.Reversed = True
body5 = doc.addObject("PartDesign::Body", "Body004")

sketch18 = doc.addObject("Sketcher::SketchObject", "Sketch017")
body5.addObject(sketch18)
sketch18.AttachmentSupport = (doc.getObject("YZ_Plane004"), [""])
sketch18.MapMode = "FlatFace"
sketch18.AttachmentOffset = App.Placement(App.Vector(0, 0, 3446), App.Rotation())
add_polygon(sketch18, [(225, 350), (225, -350), (-74, -350), (-74, -65), (-64, -55), (75, -55), (75, 55), (-64, 55), (-74, 65), (-74, 350)])
sketch18.addConstraint([
    Sketcher.Constraint("Vertical", 0),
    Sketcher.Constraint("Horizontal", 1),
    Sketcher.Constraint("Vertical", 2),
    Sketcher.Constraint("Horizontal", 4),
    Sketcher.Constraint("Vertical", 5),
    Sketcher.Constraint("Horizontal", 6),
    Sketcher.Constraint("Vertical", 8),
    Sketcher.Constraint("Horizontal", 9),
    Sketcher.Constraint("Symmetric", 3, 2, 6, 2, -1),
    Sketcher.Constraint("Symmetric", 2, 2, 7, 2, -1),
    Sketcher.Constraint("Perpendicular", 3, 7),
    Sketcher.Constraint("Equal", 2, 8),
    Sketcher.Constraint("DistanceX", 1, 2, 1, 1, 299.0),
    Sketcher.Constraint("DistanceY", 0, 2, 0, 1, 700.0),
    Sketcher.Constraint("DistanceY", 2, 1, 2, 2, 285.0),
    Sketcher.Constraint("DistanceY", 5, 1, 5, 2, 110.0),
    Sketcher.Constraint("DistanceX", 4, 1, 4, 2, 139.1),
    Sketcher.Constraint("DistanceX", -1, 1, 0, 2, 225.0),
])
sketch18.setExpression("Constraints[22]", "Params.sketch18_width")
sketch18.setExpression("Constraints[23]", "Params.sketch18_height")
sketch18.setExpression("Constraints[24]", "Params.sketch18_height2")
sketch18.setExpression("Constraints[25]", "Params.sketch18_height3")
sketch18.setExpression("Constraints[26]", "Params.sketch18_width2")
pad14 = doc.addObject("PartDesign::Pad", "Pad013")
body5.addObject(pad14)
pad14.Profile = sketch18
pad14.setExpression("Length", "Params.pad14_length")
pad14.Reversed = True
body6 = doc.addObject("PartDesign::Body", "Body005")
body6.AllowCompound = True

sketch19 = doc.addObject("Sketcher::SketchObject", "Sketch018")
body6.addObject(sketch19)
sketch19.AttachmentSupport = (doc.getObject("XZ_Plane005"), [""])
sketch19.MapMode = "FlatFace"
sketch19.AttachmentOffset = App.Placement(App.Vector(0, 0, 80), App.Rotation())
sketch19.addGeometry([
    Part.Circle(App.Vector(3421, 80, 0), App.Vector(0, 0, 1), 8),
    Part.Circle(App.Vector(3472, 80, 0), App.Vector(0, 0, 1), 8),
    Part.Circle(App.Vector(3523, 80, 0), App.Vector(0, 0, 1), 8),
    Part.Circle(App.Vector(3574, 80, 0), App.Vector(0, 0, 1), 8),
    Part.Circle(App.Vector(3574, -80, 0), App.Vector(0, 0, 1), 8),
    Part.Circle(App.Vector(3523, -80, 0), App.Vector(0, 0, 1), 8),
    Part.Circle(App.Vector(3472, -80, 0), App.Vector(0, 0, 1), 8),
    Part.Circle(App.Vector(3421, -80, 0), App.Vector(0, 0, 1), 8),
], False)
sketch19.addConstraint([
    Sketcher.Constraint("Equal", 0, 1),
    Sketcher.Constraint("Equal", 1, 2),
    Sketcher.Constraint("Equal", 2, 3),
    Sketcher.Constraint("Equal", 3, 4),
    Sketcher.Constraint("Equal", 4, 5),
    Sketcher.Constraint("Equal", 5, 6),
    Sketcher.Constraint("Equal", 6, 7),
    Sketcher.Constraint("Symmetric", 3, 3, 4, 3, -1),
    Sketcher.Constraint("Symmetric", 2, 3, 5, 3, -1),
    Sketcher.Constraint("Symmetric", 1, 3, 6, 3, -1),
    Sketcher.Constraint("Symmetric", 0, 3, 7, 3, -1),
    Sketcher.Constraint("Horizontal", 0, 3, 1, 3),
    Sketcher.Constraint("Horizontal", 1, 3, 2, 3),
    Sketcher.Constraint("Horizontal", 2, 3, 3, 3),
    Sketcher.Constraint("Diameter", 0, 16.0),
    Sketcher.Constraint("DistanceX", -1, 1, 0, 3, 3421.0),
    Sketcher.Constraint("DistanceY", -1, 1, 0, 3, 80.0),
    Sketcher.Constraint("DistanceX", -1, 1, 1, 3, 3472.0),
    Sketcher.Constraint("DistanceX", -1, 1, 2, 3, 3523.0),
    Sketcher.Constraint("DistanceX", -1, 1, 3, 3, 3574.0),
])
sketch19.setExpression("Constraints[14]", "Params.sketch19_diameter")
pad15 = doc.addObject("PartDesign::Pad", "Pad014")
body6.addObject(pad15)
pad15.Profile = sketch19
pad15.setExpression("Length", "Params.pad15_length")
pad15.Reversed = True
doc.recompute()

body7 = doc.addObject("PartDesign::Body", "Body006")
body7.BaseFeature = body6
boolean = doc.addObject("PartDesign::Boolean", "Boolean")
body2.addObject(boolean)
boolean.Type = "Cut"
boolean.addObjects([body7])
doc.recompute()

body8 = doc.addObject("PartDesign::Body", "Body007")
body8.BaseFeature = body6
boolean2 = doc.addObject("PartDesign::Boolean", "Boolean001")
body3.addObject(boolean2)
boolean2.Type = "Cut"
boolean2.addObjects([body8])
doc.recompute()

body9 = doc.addObject("PartDesign::Body", "Body008")
body9.BaseFeature = body6
boolean3 = doc.addObject("PartDesign::Boolean", "Boolean002")
body4.addObject(boolean3)
boolean3.Type = "Cut"
boolean3.addObjects([body9])
doc.recompute()

boolean4 = doc.addObject("PartDesign::Boolean", "Boolean003")
body5.addObject(boolean4)
boolean4.Type = "Cut"
boolean4.addObjects([body6])
body10 = doc.addObject("PartDesign::Body", "Body009")

sketch20 = doc.addObject("Sketcher::SketchObject", "Sketch019")
body10.addObject(sketch20)
sketch20.AttachmentSupport = (doc.getObject("YZ_Plane009"), [""])
sketch20.MapMode = "FlatFace"
sketch20.AttachmentOffset = App.Placement(App.Vector(0, 0, 3650), App.Rotation())
sketch20.addGeometry(Part.Circle(App.Vector(185, 0, 0), App.Vector(0, 0, 1), 11), False)
sketch20.addConstraint([
    Sketcher.Constraint("PointOnObject", 0, 3, -1),
    Sketcher.Constraint("Diameter", 0, 22.0),
    Sketcher.Constraint("DistanceX", -1, 1, 0, 3, 185.0),
])
sketch20.setExpression("Constraints[1]", "Params.sketch20_diameter")
pad16 = doc.addObject("PartDesign::Pad", "Pad015")
body10.addObject(pad16)
pad16.Profile = sketch20
pad16.setExpression("Length", "Params.pad16_length")
pad16.Reversed = True
doc.recompute()

body11 = doc.addObject("PartDesign::Body", "Body010")
body11.BaseFeature = body10
boolean5 = doc.addObject("PartDesign::Boolean", "Boolean004")
body.addObject(boolean5)
boolean5.Type = "Cut"
boolean5.addObjects([body11])
doc.recompute()

sketch21 = doc.addObject("Sketcher::SketchObject", "Sketch020")
body.addObject(sketch21)
sketch21.AttachmentSupport = (doc.YZ_Plane, [""])
sketch21.MapMode = "FlatFace"
sketch21.addGeometry([
    Part.Circle(App.Vector(0, 72, 0), App.Vector(0, 0, 1), 6),
    Part.Circle(App.Vector(0, -72, 0), App.Vector(0, 0, 1), 6),
], False)
sketch21.addConstraint([
    Sketcher.Constraint("Equal", 0, 1),
    Sketcher.Constraint("Symmetric", 0, 3, 1, 3, -1, 1),
    Sketcher.Constraint("PointOnObject", 0, 3, -2),
    Sketcher.Constraint("Diameter", 0, 12.0),
    Sketcher.Constraint("DistanceY", -1, 1, 0, 3, 72.0),
])
sketch21.setExpression("Constraints[3]", "Params.sketch21_diameter")
pad17 = doc.addObject("PartDesign::Pad", "Pad016")
body.addObject(pad17)
pad17.Profile = sketch21
pad17.setExpression("Length", "Params.pad17_length")
pad17.Midplane = True

sketch22 = doc.addObject("Sketcher::SketchObject", "Sketch021")
body.addObject(sketch22)
sketch22.AttachmentSupport = (doc.YZ_Plane, [""])
sketch22.MapMode = "FlatFace"
sketch22.AttachmentOffset = App.Placement(App.Vector(0, 0, 3650), App.Rotation())
add_polygon(sketch22, [(225, 350), (-75, 350), (-75, -350), (225, -350)])
sketch22.addConstraint([
    Sketcher.Constraint("Horizontal", 0),
    Sketcher.Constraint("Vertical", 1),
    Sketcher.Constraint("Horizontal", 2),
    Sketcher.Constraint("Vertical", 3),
    Sketcher.Constraint("DistanceX", 0, 2, 0, 1, 300.0),
    Sketcher.Constraint("DistanceY", 1, 2, 1, 1, 700.0),
    Sketcher.Constraint("DistanceX", 0, 2, -1, 1, 75.0),
    Sketcher.Constraint("DistanceY", -1, 1, 0, 2, 350.0),
])
sketch22.setExpression("Constraints[8]", "Params.sketch22_width")
sketch22.setExpression("Constraints[9]", "Params.sketch22_height")
pocket5 = doc.addObject("PartDesign::Pocket", "Pocket004")
body.addObject(pocket5)
pocket5.Profile = sketch22
pocket5.setExpression("Length", "Params.pocket5_length")
doc.recompute()

body12 = doc.addObject("PartDesign::Body", "Body011")
body12.BaseFeature = body10
boolean6 = doc.addObject("PartDesign::Boolean", "Boolean005")
body2.addObject(boolean6)
boolean6.Type = "Cut"
boolean6.addObjects([body12])
doc.recompute()

body13 = doc.addObject("PartDesign::Body", "Body012")
body13.BaseFeature = body10
boolean7 = doc.addObject("PartDesign::Boolean", "Boolean006")
body3.addObject(boolean7)
boolean7.Type = "Cut"
boolean7.addObjects([body13])
doc.recompute()

body14 = doc.addObject("PartDesign::Body", "Body013")
body14.BaseFeature = body10
boolean8 = doc.addObject("PartDesign::Boolean", "Boolean007")
body4.addObject(boolean8)
boolean8.Type = "Cut"
boolean8.addObjects([body14])
doc.recompute()

boolean9 = doc.addObject("PartDesign::Boolean", "Boolean008")
body5.addObject(boolean9)
boolean9.Type = "Cut"
boolean9.addObjects([body10])

doc.recompute()
